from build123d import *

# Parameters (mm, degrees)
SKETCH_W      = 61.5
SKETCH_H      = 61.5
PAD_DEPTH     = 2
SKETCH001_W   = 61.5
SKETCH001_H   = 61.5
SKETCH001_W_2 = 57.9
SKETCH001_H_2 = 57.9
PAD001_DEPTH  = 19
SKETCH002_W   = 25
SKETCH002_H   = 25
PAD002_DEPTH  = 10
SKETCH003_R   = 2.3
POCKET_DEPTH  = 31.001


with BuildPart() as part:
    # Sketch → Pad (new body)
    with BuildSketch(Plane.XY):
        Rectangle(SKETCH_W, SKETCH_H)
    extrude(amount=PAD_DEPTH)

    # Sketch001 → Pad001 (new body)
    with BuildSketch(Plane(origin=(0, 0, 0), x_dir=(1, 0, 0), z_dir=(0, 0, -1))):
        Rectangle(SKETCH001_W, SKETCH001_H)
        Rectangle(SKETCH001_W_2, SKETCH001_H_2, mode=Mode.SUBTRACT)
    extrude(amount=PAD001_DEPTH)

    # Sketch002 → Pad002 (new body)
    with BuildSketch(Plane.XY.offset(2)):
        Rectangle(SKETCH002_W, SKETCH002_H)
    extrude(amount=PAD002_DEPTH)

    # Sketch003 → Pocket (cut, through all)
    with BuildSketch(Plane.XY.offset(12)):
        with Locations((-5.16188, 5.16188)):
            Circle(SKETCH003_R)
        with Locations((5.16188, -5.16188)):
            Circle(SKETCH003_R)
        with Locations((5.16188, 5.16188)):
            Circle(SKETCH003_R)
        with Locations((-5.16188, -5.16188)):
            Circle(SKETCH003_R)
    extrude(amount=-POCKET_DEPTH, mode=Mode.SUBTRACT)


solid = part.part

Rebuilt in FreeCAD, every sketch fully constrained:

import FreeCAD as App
import Part
import Sketcher

V = App.Vector

doc = App.newDocument("Part")
params = doc.addObject("Spreadsheet::Sheet", "Params")
for row, (alias, value) in enumerate([
    ("sketch1_width", "61.5 mm"),
    ("pad1_length", "2 mm"),
    ("sketch2_width", "61.5 mm"),
    ("sketch2_width2", "57.9 mm"),
    ("pad2_length", "19 mm"),
    ("sketch3_width", "25 mm"),
    ("pad3_length", "10 mm"),
    ("sketch4_diameter", "4.6 mm"),
], start=1):
    params.set(f"A{row}", alias)
    params.set(f"B{row}", "=" + value)
    params.setAlias(f"B{row}", alias)

body = doc.addObject("PartDesign::Body", "Body")

sketch1 = body.newObject("Sketcher::SketchObject", "Sketch")
sketch1.AttachmentSupport = (doc.getObject("XY_Plane"), [""])
sketch1.MapMode = "FlatFace"
sketch1.addGeometry([
    Part.LineSegment(V(-31, 31, 0), V(-31, -31, 0)),
    Part.LineSegment(V(-31, -31, 0), V(31, -31, 0)),
    Part.LineSegment(V(31, -31, 0), V(31, 31, 0)),
    Part.LineSegment(V(31, 31, 0), V(-31, 31, 0)),
], False)
sketch1.addConstraint([
    Sketcher.Constraint("Coincident", 0, 2, 1, 1),
    Sketcher.Constraint("Coincident", 1, 2, 2, 1),
    Sketcher.Constraint("Coincident", 2, 2, 3, 1),
    Sketcher.Constraint("Coincident", 3, 2, 0, 1),
    Sketcher.Constraint("Vertical", 0),
    Sketcher.Constraint("Horizontal", 1),
    Sketcher.Constraint("Vertical", 2),
    Sketcher.Constraint("Horizontal", 3),
    Sketcher.Constraint("Symmetric", 0, 2, 2, 2, -1, 1),
    Sketcher.Constraint("Equal", 3, 0),
    Sketcher.Constraint("DistanceX", 1, 1, 1, 2, 61.5),
])
sketch1.setExpression("Constraints[10]", "Params.sketch1_width")
pad1 = body.newObject("PartDesign::Pad", "Pad")
pad1.Profile = sketch1
pad1.setExpression("Length", "Params.pad1_length")

sketch2 = body.newObject("Sketcher::SketchObject", "Sketch001")
sketch2.AttachmentSupport = (doc.getObject("XY_Plane"), [""])
sketch2.MapMode = "FlatFace"
sketch2.addGeometry([
    Part.LineSegment(V(-31, -31, 0), V(-31, 31, 0)),
    Part.LineSegment(V(-31, 31, 0), V(31, 31, 0)),
    Part.LineSegment(V(31, 31, 0), V(31, -31, 0)),
    Part.LineSegment(V(31, -31, 0), V(-31, -31, 0)),
    Part.LineSegment(V(29, 29, 0), V(-29, 29, 0)),
    Part.LineSegment(V(-29, 29, 0), V(-29, -29, 0)),
    Part.LineSegment(V(-29, -29, 0), V(29, -29, 0)),
    Part.LineSegment(V(29, -29, 0), V(29, 29, 0)),
], False)
sketch2.addConstraint([
    Sketcher.Constraint("Coincident", 0, 2, 1, 1),
    Sketcher.Constraint("Coincident", 1, 2, 2, 1),
    Sketcher.Constraint("Coincident", 2, 2, 3, 1),
    Sketcher.Constraint("Coincident", 3, 2, 0, 1),
    Sketcher.Constraint("Coincident", 4, 2, 5, 1),
    Sketcher.Constraint("Coincident", 5, 2, 6, 1),
    Sketcher.Constraint("Coincident", 6, 2, 7, 1),
    Sketcher.Constraint("Coincident", 7, 2, 4, 1),
    Sketcher.Constraint("Vertical", 0),
    Sketcher.Constraint("Horizontal", 1),
    Sketcher.Constraint("Vertical", 2),
    Sketcher.Constraint("Horizontal", 3),
    Sketcher.Constraint("Horizontal", 4),
    Sketcher.Constraint("Vertical", 5),
    Sketcher.Constraint("Horizontal", 6),
    Sketcher.Constraint("Vertical", 7),
    Sketcher.Constraint("Symmetric", 0, 2, 2, 2, -1, 1),
    Sketcher.Constraint("Symmetric", 4, 2, 6, 2, -1, 1),
    Sketcher.Constraint("Equal", 3, 0),
    Sketcher.Constraint("Equal", 6, 5),
    Sketcher.Constraint("DistanceX", 1, 1, 1, 2, 61.5),
    Sketcher.Constraint("DistanceX", 4, 2, 4, 1, 57.9),
])
sketch2.setExpression("Constraints[20]", "Params.sketch2_width")
sketch2.setExpression("Constraints[21]", "Params.sketch2_width2")
pad2 = body.newObject("PartDesign::Pad", "Pad001")
pad2.Profile = sketch2
pad2.setExpression("Length", "Params.pad2_length")
pad2.Reversed = True

sketch3 = body.newObject("Sketcher::SketchObject", "Sketch002")
sketch3.AttachmentSupport = (doc.getObject("XY_Plane"), [""])
sketch3.MapMode = "FlatFace"
sketch3.AttachmentOffset = App.Placement(V(0, 0, 2), App.Rotation())
sketch3.addGeometry([
    Part.LineSegment(V(-12, 12, 0), V(-12, -12, 0)),
    Part.LineSegment(V(-12, -12, 0), V(12, -12, 0)),
    Part.LineSegment(V(12, -12, 0), V(12, 12, 0)),
    Part.LineSegment(V(12, 12, 0), V(-12, 12, 0)),
], False)
sketch3.addConstraint([
    Sketcher.Constraint("Coincident", 0, 2, 1, 1),
    Sketcher.Constraint("Coincident", 1, 2, 2, 1),
    Sketcher.Constraint("Coincident", 2, 2, 3, 1),
    Sketcher.Constraint("Coincident", 3, 2, 0, 1),
    Sketcher.Constraint("Vertical", 0),
    Sketcher.Constraint("Horizontal", 1),
    Sketcher.Constraint("Vertical", 2),
    Sketcher.Constraint("Horizontal", 3),
    Sketcher.Constraint("Symmetric", 0, 2, 2, 2, -1, 1),
    Sketcher.Constraint("Equal", 3, 0),
    Sketcher.Constraint("DistanceX", 1, 1, 1, 2, 25.0),
])
sketch3.setExpression("Constraints[10]", "Params.sketch3_width")
pad3 = body.newObject("PartDesign::Pad", "Pad002")
pad3.Profile = sketch3
pad3.setExpression("Length", "Params.pad3_length")

sketch4 = body.newObject("Sketcher::SketchObject", "Sketch003")
sketch4.AttachmentSupport = (doc.getObject("XY_Plane"), [""])
sketch4.MapMode = "FlatFace"
sketch4.AttachmentOffset = App.Placement(V(0, 0, 12), App.Rotation())
sketch4.addGeometry([
    Part.Circle(V(-5.2, 5.2, 0), V(0, 0, 1), 2.3),
    Part.Circle(V(5.2, -5.2, 0), V(0, 0, 1), 2.3),
    Part.Circle(V(5.2, 5.2, 0), V(0, 0, 1), 2.3),
    Part.Circle(V(-5.2, -5.2, 0), V(0, 0, 1), 2.3),
], False)
sketch4.addConstraint([
    Sketcher.Constraint("Equal", 0, 1),
    Sketcher.Constraint("Equal", 1, 2),
    Sketcher.Constraint("Equal", 2, 3),
    Sketcher.Constraint("Symmetric", 0, 3, 1, 3, -1, 1),
    Sketcher.Constraint("Symmetric", 2, 3, 3, 3, -1, 1),
    Sketcher.Constraint("Symmetric", 0, 3, 2, 3, -2),
    Sketcher.Constraint("Diameter", 0, 4.6),
    Sketcher.Constraint("DistanceX", 0, 3, -1, 1, 5.16188),
    Sketcher.Constraint("DistanceY", -1, 1, 0, 3, 5.16188),
])
sketch4.setExpression("Constraints[6]", "Params.sketch4_diameter")
pocket1 = body.newObject("PartDesign::Pocket", "Pocket")
pocket1.Profile = sketch4
pocket1.Type = "ThroughAll"

doc.recompute()
